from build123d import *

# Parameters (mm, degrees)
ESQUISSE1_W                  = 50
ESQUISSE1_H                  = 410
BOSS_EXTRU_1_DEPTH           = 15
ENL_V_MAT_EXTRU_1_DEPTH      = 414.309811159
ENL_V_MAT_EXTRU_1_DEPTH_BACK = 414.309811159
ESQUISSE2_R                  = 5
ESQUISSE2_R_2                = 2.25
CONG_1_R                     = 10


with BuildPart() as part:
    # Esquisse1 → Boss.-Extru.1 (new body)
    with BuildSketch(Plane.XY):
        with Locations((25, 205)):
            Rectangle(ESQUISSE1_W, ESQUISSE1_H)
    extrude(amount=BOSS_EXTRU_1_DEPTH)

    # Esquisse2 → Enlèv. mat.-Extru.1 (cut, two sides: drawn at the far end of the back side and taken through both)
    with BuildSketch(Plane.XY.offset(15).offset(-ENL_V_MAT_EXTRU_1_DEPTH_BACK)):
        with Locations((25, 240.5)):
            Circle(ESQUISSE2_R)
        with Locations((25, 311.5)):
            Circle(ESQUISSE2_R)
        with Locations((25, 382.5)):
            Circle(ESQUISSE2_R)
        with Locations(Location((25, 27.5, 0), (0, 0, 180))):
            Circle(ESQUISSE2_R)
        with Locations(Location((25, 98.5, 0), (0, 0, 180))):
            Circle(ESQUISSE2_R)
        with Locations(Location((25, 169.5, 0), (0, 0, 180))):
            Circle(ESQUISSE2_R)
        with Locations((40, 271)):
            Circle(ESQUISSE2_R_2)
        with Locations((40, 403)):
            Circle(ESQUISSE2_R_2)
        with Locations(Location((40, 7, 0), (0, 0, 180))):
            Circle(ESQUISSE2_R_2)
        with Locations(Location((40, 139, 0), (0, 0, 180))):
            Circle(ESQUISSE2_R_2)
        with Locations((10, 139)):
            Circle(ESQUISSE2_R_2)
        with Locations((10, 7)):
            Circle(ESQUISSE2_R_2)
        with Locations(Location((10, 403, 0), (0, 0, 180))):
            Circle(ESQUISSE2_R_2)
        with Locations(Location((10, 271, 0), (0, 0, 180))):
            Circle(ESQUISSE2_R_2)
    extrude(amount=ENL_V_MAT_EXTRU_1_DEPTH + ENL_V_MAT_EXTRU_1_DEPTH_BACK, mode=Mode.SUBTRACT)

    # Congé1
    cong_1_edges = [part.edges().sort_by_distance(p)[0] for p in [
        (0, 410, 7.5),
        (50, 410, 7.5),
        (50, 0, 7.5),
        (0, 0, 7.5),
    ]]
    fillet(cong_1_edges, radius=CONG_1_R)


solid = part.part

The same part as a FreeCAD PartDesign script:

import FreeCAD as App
import Part
import Sketcher

V = App.Vector
Q = App.Units.Quantity


def edges_at(feature, points):
    """Names of the edges that pass closest to the given points."""
    edges = feature.Shape.Edges
    near = lambda p: min(range(len(edges)), key=lambda i: edges[i].distToShape(Part.Vertex(*p))[0])
    return sorted({f"Edge{near(p) + 1}" for p in points})


def add_polygon(sketch, points):
    """Adds a closed chain of lines whose ends are joined by coincident constraints."""
    first, n = sketch.GeometryCount, len(points)
    for a, b in zip(points, points[1:] + points[:1]):
        sketch.addGeometry(Part.LineSegment(App.Vector(*a, 0), App.Vector(*b, 0)), False)
    for i in range(n):
        sketch.addConstraint(Sketcher.Constraint("Coincident", first + i, 2, first + (i + 1) % n, 1))

doc = App.newDocument("Part")
params = doc.addObject("Spreadsheet::Sheet", "Params")
for row, (alias, value) in enumerate([
    ("sketch1_width", "50 mm"),
    ("sketch1_height", "410 mm"),
    ("pad1_length", "15 mm"),
    ("sketch2_diameter", "10 mm"),
    ("sketch2_diameter2", "4.5 mm"),
    ("fillet_radius", "10 mm"),
], start=1):
    params.set(f"A{row}", alias)
    params.set(f"B{row}", "=" + value)
    params.setAlias(f"B{row}", alias)

body = doc.addObject("PartDesign::Body", "Body")

# Sketch on XY plane
sketch1 = body.newObject("Sketcher::SketchObject", "Sketch")
sketch1.AttachmentSupport = (doc.getObject("XY_Plane"), [""])
sketch1.MapMode = "FlatFace"
add_polygon(sketch1, [(0, 410), (0, 0), (50, 0), (50, 410)])  # lines 0-3
sketch1.addConstraint(Sketcher.Constraint("Vertical", 0))
sketch1.addConstraint(Sketcher.Constraint("Horizontal", 1))
sketch1.addConstraint(Sketcher.Constraint("Vertical", 2))
sketch1.addConstraint(Sketcher.Constraint("Horizontal", 3))
sketch1.addConstraint(Sketcher.Constraint("Coincident", 0, 2, -1, 1))
sketch1.addConstraint(Sketcher.Constraint("DistanceX", 1, 1, 1, 2, Q("50 mm")))
sketch1.addConstraint(Sketcher.Constraint("DistanceY", 0, 2, 0, 1, Q("410 mm")))
sketch1.setExpression("Constraints[9]", "Params.sketch1_width")
sketch1.setExpression("Constraints[10]", "Params.sketch1_height")
pad1 = body.newObject("PartDesign::Pad", "Pad")
pad1.Profile = sketch1
pad1.setExpression("Length", "Params.pad1_length")

# Sketch on XY plane
sketch2 = body.newObject("Sketcher::SketchObject", "Sketch001")
sketch2.AttachmentSupport = (doc.getObject("XY_Plane"), [""])
sketch2.MapMode = "FlatFace"
sketch2.AttachmentOffset = App.Placement(V(0, 0, 15), App.Rotation())
sketch2.addGeometry(Part.Circle(V(25, 240.5, 0), V(0, 0, 1), 5), False)
sketch2.addGeometry(Part.Circle(V(25, 311.5, 0), V(0, 0, 1), 5), False)
sketch2.addGeometry(Part.Circle(V(25, 382.5, 0), V(0, 0, 1), 5), False)
sketch2.addGeometry(Part.Circle(V(25, 27.5, 0), V(0, 0, 1), 5), False)
sketch2.addGeometry(Part.Circle(V(25, 98.5, 0), V(0, 0, 1), 5), False)
sketch2.addGeometry(Part.Circle(V(25, 169.5, 0), V(0, 0, 1), 5), False)
sketch2.addGeometry(Part.Circle(V(40, 271, 0), V(0, 0, 1), 2.2), False)
sketch2.addGeometry(Part.Circle(V(40, 403, 0), V(0, 0, 1), 2.2), False)
sketch2.addGeometry(Part.Circle(V(40, 7, 0), V(0, 0, 1), 2.2), False)
sketch2.addGeometry(Part.Circle(V(40, 139, 0), V(0, 0, 1), 2.2), False)
sketch2.addGeometry(Part.Circle(V(10, 139, 0), V(0, 0, 1), 2.2), False)
sketch2.addGeometry(Part.Circle(V(10, 7, 0), V(0, 0, 1), 2.2), False)
sketch2.addGeometry(Part.Circle(V(10, 403, 0), V(0, 0, 1), 2.2), False)
sketch2.addGeometry(Part.Circle(V(10, 271, 0), V(0, 0, 1), 2.2), False)
sketch2.addConstraint(Sketcher.Constraint("Equal", 0, 1))
sketch2.addConstraint(Sketcher.Constraint("Equal", 1, 2))
sketch2.addConstraint(Sketcher.Constraint("Equal", 2, 3))
sketch2.addConstraint(Sketcher.Constraint("Equal", 3, 4))
sketch2.addConstraint(Sketcher.Constraint("Equal", 4, 5))
sketch2.addConstraint(Sketcher.Constraint("Equal", 6, 7))
sketch2.addConstraint(Sketcher.Constraint("Equal", 7, 8))
sketch2.addConstraint(Sketcher.Constraint("Equal", 8, 9))
sketch2.addConstraint(Sketcher.Constraint("Equal", 9, 10))
sketch2.addConstraint(Sketcher.Constraint("Equal", 10, 11))
sketch2.addConstraint(Sketcher.Constraint("Equal", 11, 12))
sketch2.addConstraint(Sketcher.Constraint("Equal", 12, 13))
sketch2.addConstraint(Sketcher.Constraint("Horizontal", 9, 3, 10, 3))
sketch2.addConstraint(Sketcher.Constraint("Horizontal", 8, 3, 11, 3))
sketch2.addConstraint(Sketcher.Constraint("Horizontal", 7, 3, 12, 3))
sketch2.addConstraint(Sketcher.Constraint("Horizontal", 6, 3, 13, 3))
sketch2.addConstraint(Sketcher.Constraint("Vertical", 0, 3, 1, 3))
sketch2.addConstraint(Sketcher.Constraint("Vertical", 1, 3, 2, 3))
sketch2.addConstraint(Sketcher.Constraint("Vertical", 2, 3, 3, 3))
sketch2.addConstraint(Sketcher.Constraint("Vertical", 3, 3, 4, 3))
sketch2.addConstraint(Sketcher.Constraint("Vertical", 4, 3, 5, 3))
sketch2.addConstraint(Sketcher.Constraint("Vertical", 6, 3, 7, 3))
sketch2.addConstraint(Sketcher.Constraint("Vertical", 7, 3, 8, 3))
sketch2.addConstraint(Sketcher.Constraint("Vertical", 8, 3, 9, 3))
sketch2.addConstraint(Sketcher.Constraint("Vertical", 10, 3, 11, 3))
sketch2.addConstraint(Sketcher.Constraint("Vertical", 11, 3, 12, 3))
sketch2.addConstraint(Sketcher.Constraint("Vertical", 12, 3, 13, 3))
sketch2.addConstraint(Sketcher.Constraint("Diameter", 0, Q("10 mm")))
sketch2.addConstraint(Sketcher.Constraint("Diameter", 6, Q("4.5 mm")))
sketch2.addConstraint(Sketcher.Constraint("DistanceX", -1, 1, 0, 3, Q("25 mm")))
sketch2.addConstraint(Sketcher.Constraint("DistanceX", -1, 1, 6, 3, Q("40 mm")))
sketch2.addConstraint(Sketcher.Constraint("DistanceY", -1, 1, 6, 3, Q("271 mm")))
sketch2.addConstraint(Sketcher.Constraint("DistanceY", -1, 1, 7, 3, Q("403 mm")))
sketch2.addConstraint(Sketcher.Constraint("DistanceY", -1, 1, 8, 3, Q("7 mm")))
sketch2.addConstraint(Sketcher.Constraint("DistanceY", -1, 1, 9, 3, Q("139 mm")))
sketch2.addConstraint(Sketcher.Constraint("DistanceX", -1, 1, 10, 3, Q("10 mm")))
sketch2.addConstraint(Sketcher.Constraint("DistanceY", 0, 3, 1, 3, Q("71 mm")))
sketch2.addConstraint(Sketcher.Constraint("DistanceY", 1, 3, 2, 3, Q("71 mm")))
sketch2.addConstraint(Sketcher.Constraint("DistanceY", 3, 3, 0, 3, Q("213 mm")))
sketch2.addConstraint(Sketcher.Constraint("DistanceY", 3, 3, 4, 3, Q("71 mm")))
sketch2.addConstraint(Sketcher.Constraint("DistanceY", 5, 3, 0, 3, Q("71 mm")))
sketch2.addConstraint(Sketcher.Constraint("DistanceY", -1, 1, 0, 3, Q("240.5 mm")))
sketch2.setExpression("Constraints[27]", "Params.sketch2_diameter")
sketch2.setExpression("Constraints[28]", "Params.sketch2_diameter2")
pocket1 = body.newObject("PartDesign::Pocket", "Pocket")
pocket1.Profile = sketch2
pocket1.Type = "ThroughAll"
pocket1.Midplane = True
doc.recompute()

fillet = body.newObject("PartDesign::Fillet", "Fillet")
fillet.Base = (pocket1, edges_at(pocket1, [
    (0, 410, 7.5),
    (50, 410, 7.5),
    (50, 0, 7.5),
    (0, 0, 7.5),
]))
fillet.setExpression("Radius", "Params.fillet_radius")

doc.recompute()
